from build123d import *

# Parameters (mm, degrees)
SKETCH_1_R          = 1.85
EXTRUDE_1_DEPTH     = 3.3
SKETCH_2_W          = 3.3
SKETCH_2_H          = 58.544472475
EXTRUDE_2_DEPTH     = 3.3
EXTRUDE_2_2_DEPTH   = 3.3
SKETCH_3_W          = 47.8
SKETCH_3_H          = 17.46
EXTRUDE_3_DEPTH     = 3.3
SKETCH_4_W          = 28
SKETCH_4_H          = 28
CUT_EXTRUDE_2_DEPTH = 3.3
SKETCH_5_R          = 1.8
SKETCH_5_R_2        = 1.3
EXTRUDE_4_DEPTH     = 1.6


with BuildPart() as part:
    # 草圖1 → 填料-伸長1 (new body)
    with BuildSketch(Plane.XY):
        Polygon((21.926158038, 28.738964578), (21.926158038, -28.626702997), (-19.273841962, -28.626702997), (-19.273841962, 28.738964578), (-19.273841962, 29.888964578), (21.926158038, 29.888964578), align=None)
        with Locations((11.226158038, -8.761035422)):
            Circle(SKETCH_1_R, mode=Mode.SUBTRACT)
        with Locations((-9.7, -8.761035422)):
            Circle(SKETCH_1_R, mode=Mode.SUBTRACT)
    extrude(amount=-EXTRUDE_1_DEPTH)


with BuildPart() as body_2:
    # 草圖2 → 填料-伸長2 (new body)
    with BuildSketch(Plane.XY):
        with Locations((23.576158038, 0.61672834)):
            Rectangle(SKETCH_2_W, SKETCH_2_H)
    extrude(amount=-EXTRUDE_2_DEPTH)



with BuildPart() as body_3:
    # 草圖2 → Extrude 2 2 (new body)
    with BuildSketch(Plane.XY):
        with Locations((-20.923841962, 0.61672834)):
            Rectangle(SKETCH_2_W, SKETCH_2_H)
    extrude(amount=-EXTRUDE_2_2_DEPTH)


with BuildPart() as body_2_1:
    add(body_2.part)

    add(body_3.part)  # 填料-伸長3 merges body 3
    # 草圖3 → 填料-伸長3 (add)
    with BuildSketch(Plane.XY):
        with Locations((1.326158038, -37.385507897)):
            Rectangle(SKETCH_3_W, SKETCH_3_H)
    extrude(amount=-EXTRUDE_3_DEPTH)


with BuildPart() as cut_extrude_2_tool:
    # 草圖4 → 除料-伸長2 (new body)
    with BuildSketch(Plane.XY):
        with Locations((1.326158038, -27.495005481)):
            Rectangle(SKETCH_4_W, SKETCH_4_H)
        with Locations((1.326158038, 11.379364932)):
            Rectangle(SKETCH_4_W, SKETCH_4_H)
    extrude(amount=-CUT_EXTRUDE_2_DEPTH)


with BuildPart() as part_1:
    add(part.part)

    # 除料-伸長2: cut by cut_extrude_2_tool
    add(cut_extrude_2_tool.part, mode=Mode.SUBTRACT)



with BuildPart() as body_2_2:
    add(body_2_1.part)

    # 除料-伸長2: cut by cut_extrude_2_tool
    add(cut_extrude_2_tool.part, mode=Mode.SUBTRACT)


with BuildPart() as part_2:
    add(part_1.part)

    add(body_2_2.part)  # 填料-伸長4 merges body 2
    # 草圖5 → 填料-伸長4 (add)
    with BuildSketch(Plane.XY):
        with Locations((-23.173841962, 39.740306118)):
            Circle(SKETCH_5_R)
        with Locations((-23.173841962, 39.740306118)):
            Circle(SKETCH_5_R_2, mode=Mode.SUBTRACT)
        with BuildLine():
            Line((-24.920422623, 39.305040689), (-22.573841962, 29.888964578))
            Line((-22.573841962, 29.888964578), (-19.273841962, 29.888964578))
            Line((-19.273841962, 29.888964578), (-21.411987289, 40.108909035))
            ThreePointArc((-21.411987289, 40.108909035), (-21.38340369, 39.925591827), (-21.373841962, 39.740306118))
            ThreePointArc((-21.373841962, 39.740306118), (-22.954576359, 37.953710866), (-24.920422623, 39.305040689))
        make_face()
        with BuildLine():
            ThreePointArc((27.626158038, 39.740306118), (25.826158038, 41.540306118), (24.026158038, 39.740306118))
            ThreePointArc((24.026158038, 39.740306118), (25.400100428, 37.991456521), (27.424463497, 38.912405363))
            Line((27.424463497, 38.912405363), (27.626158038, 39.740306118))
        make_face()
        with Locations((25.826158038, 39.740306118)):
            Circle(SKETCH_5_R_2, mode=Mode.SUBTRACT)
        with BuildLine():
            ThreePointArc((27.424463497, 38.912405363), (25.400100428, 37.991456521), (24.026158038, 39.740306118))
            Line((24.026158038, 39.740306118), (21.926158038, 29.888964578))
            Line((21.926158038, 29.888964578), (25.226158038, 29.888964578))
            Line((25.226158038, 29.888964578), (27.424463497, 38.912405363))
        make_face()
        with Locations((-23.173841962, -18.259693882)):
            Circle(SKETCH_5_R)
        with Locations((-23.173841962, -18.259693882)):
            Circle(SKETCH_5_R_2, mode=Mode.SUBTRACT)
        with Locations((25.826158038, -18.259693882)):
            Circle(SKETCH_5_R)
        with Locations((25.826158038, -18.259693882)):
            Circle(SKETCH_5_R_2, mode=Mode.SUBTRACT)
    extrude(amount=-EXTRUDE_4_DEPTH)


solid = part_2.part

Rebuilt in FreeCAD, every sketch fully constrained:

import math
import FreeCAD as App
import Part
import Sketcher

V = App.Vector
Q = App.Units.Quantity

doc = App.newDocument("Part")
params = doc.addObject("Spreadsheet::Sheet", "Params")
for row, (alias, value) in enumerate([
    ("sketch1_diameter", "3.7 mm"),
    ("sketch1_width", "41.2 mm"),
    ("pad1_length", "3.3 mm"),
    ("sketch2_width", "3.3 mm"),
    ("pad2_length", "3.3 mm"),
    ("sketch3_width", "3.3 mm"),
    ("pad3_length", "3.3 mm"),
    ("sketch4_width", "47.8 mm"),
    ("sketch4_height", "17.46 mm"),
    ("pad4_length", "3.3 mm"),
    ("sketch5_width", "28 mm"),
    ("pad5_length", "3.3 mm"),
    ("sketch6_diameter", "2.6 mm"),
    ("sketch6_diameter2", "3.6 mm"),
    ("sketch6_width", "3.3 mm"),
    ("pad6_length", "1.6 mm"),
], start=1):
    params.set(f"A{row}", alias)
    params.set(f"B{row}", "=" + value)
    params.setAlias(f"B{row}", alias)

body = doc.addObject("PartDesign::Body", "Body")

sketch1 = body.newObject("Sketcher::SketchObject", "Sketch")
sketch1.AttachmentSupport = (doc.getObject("XY_Plane"), [""])
sketch1.MapMode = "FlatFace"
sketch1.addGeometry(Part.LineSegment(V(21.9, -28.6, 0), V(21.9, 29.9, 0)), False)
sketch1.addGeometry(Part.LineSegment(V(21.9, 29.9, 0), V(-19.3, 29.9, 0)), False)
sketch1.addGeometry(Part.LineSegment(V(-19.3, 29.9, 0), V(-19.3, -28.6, 0)), False)
sketch1.addGeometry(Part.LineSegment(V(-19.3, -28.6, 0), V(21.9, -28.6, 0)), False)
sketch1.addGeometry(Part.Circle(V(11.2, -8.8, 0), V(0, 0, 1), 1.9), False)
sketch1.addGeometry(Part.Circle(V(-9.7, -8.8, 0), V(0, 0, 1), 1.9), False)
sketch1.addConstraint(Sketcher.Constraint("Coincident", 0, 2, 1, 1))
sketch1.addConstraint(Sketcher.Constraint("Coincident", 1, 2, 2, 1))
sketch1.addConstraint(Sketcher.Constraint("Coincident", 2, 2, 3, 1))
sketch1.addConstraint(Sketcher.Constraint("Coincident", 3, 2, 0, 1))
sketch1.addConstraint(Sketcher.Constraint("Vertical", 0))
sketch1.addConstraint(Sketcher.Constraint("Horizontal", 1))
sketch1.addConstraint(Sketcher.Constraint("Vertical", 2))
sketch1.addConstraint(Sketcher.Constraint("Horizontal", 3))
sketch1.addConstraint(Sketcher.Constraint("Equal", 4, 5))
sketch1.addConstraint(Sketcher.Constraint("Horizontal", 4, 3, 5, 3))
sketch1.addConstraint(Sketcher.Constraint("Diameter", 4, Q("3.7 mm")))
sketch1.addConstraint(Sketcher.Constraint("DistanceX", 1, 2, 1, 1, Q("41.2 mm")))
sketch1.addConstraint(Sketcher.Constraint("DistanceX", 5, 3, -1, 1, Q("9.7 mm")))
sketch1.addConstraint(Sketcher.Constraint("DistanceX", 4, 3, 0, 2, Q("10.7 mm")))
sketch1.addConstraint(Sketcher.Constraint("DistanceY", 4, 3, 0, 2, Q("38.65 mm")))
sketch1.addConstraint(Sketcher.Constraint("DistanceY", 0, 1, 0, 2, Q("58.515668 mm")))
sketch1.addConstraint(Sketcher.Constraint("DistanceX", -1, 1, 4, 3, Q("11.226158 mm")))
sketch1.addConstraint(Sketcher.Constraint("DistanceY", 4, 3, -1, 1, Q("8.761035 mm")))
sketch1.setExpression("Constraints[10]", "Params.sketch1_diameter")
sketch1.setExpression("Constraints[11]", "Params.sketch1_width")
pad1 = body.newObject("PartDesign::Pad", "Pad")
pad1.Profile = sketch1
pad1.setExpression("Length", "Params.pad1_length")
pad1.Reversed = True
body2 = doc.addObject("PartDesign::Body", "Body001")

sketch2 = body2.newObject("Sketcher::SketchObject", "Sketch001")
sketch2.AttachmentSupport = (doc.getObject("XY_Plane001"), [""])
sketch2.MapMode = "FlatFace"
sketch2.addGeometry(Part.LineSegment(V(21.9, 29.9, 0), V(21.9, -28.7, 0)), False)
sketch2.addGeometry(Part.LineSegment(V(21.9, -28.7, 0), V(25.2, -28.7, 0)), False)
sketch2.addGeometry(Part.LineSegment(V(25.2, -28.7, 0), V(25.2, 29.9, 0)), False)
sketch2.addGeometry(Part.LineSegment(V(25.2, 29.9, 0), V(21.9, 29.9, 0)), False)
sketch2.addConstraint(Sketcher.Constraint("Coincident", 0, 2, 1, 1))
sketch2.addConstraint(Sketcher.Constraint("Coincident", 1, 2, 2, 1))
sketch2.addConstraint(Sketcher.Constraint("Coincident", 2, 2, 3, 1))
sketch2.addConstraint(Sketcher.Constraint("Coincident", 3, 2, 0, 1))
sketch2.addConstraint(Sketcher.Constraint("Vertical", 0))
sketch2.addConstraint(Sketcher.Constraint("Horizontal", 1))
sketch2.addConstraint(Sketcher.Constraint("Vertical", 2))
sketch2.addConstraint(Sketcher.Constraint("Horizontal", 3))
sketch2.addConstraint(Sketcher.Constraint("DistanceX", 1, 1, 1, 2, Q("3.3 mm")))
sketch2.addConstraint(Sketcher.Constraint("DistanceY", 0, 2, 0, 1, Q("58.544472 mm")))
sketch2.addConstraint(Sketcher.Constraint("DistanceX", -1, 1, 0, 2, Q("21.926158 mm")))
sketch2.addConstraint(Sketcher.Constraint("DistanceY", 0, 2, -1, 1, Q("28.655508 mm")))
sketch2.setExpression("Constraints[8]", "Params.sketch2_width")
pad2 = body2.newObject("PartDesign::Pad", "Pad001")
pad2.Profile = sketch2
pad2.setExpression("Length", "Params.pad2_length")
pad2.Reversed = True
body3 = doc.addObject("PartDesign::Body", "Body002")

sketch3 = body3.newObject("Sketcher::SketchObject", "Sketch002")
sketch3.AttachmentSupport = (doc.getObject("XY_Plane002"), [""])
sketch3.MapMode = "FlatFace"
sketch3.addGeometry(Part.LineSegment(V(-22.6, 29.9, 0), V(-22.6, -28.7, 0)), False)
sketch3.addGeometry(Part.LineSegment(V(-22.6, -28.7, 0), V(-19.3, -28.7, 0)), False)
sketch3.addGeometry(Part.LineSegment(V(-19.3, -28.7, 0), V(-19.3, 29.9, 0)), False)
sketch3.addGeometry(Part.LineSegment(V(-19.3, 29.9, 0), V(-22.6, 29.9, 0)), False)
sketch3.addConstraint(Sketcher.Constraint("Coincident", 0, 2, 1, 1))
sketch3.addConstraint(Sketcher.Constraint("Coincident", 1, 2, 2, 1))
sketch3.addConstraint(Sketcher.Constraint("Coincident", 2, 2, 3, 1))
sketch3.addConstraint(Sketcher.Constraint("Coincident", 3, 2, 0, 1))
sketch3.addConstraint(Sketcher.Constraint("Vertical", 0))
sketch3.addConstraint(Sketcher.Constraint("Horizontal", 1))
sketch3.addConstraint(Sketcher.Constraint("Vertical", 2))
sketch3.addConstraint(Sketcher.Constraint("Horizontal", 3))
sketch3.addConstraint(Sketcher.Constraint("DistanceX", 1, 1, 1, 2, Q("3.3 mm")))
sketch3.addConstraint(Sketcher.Constraint("DistanceY", 0, 2, 0, 1, Q("58.544472 mm")))
sketch3.addConstraint(Sketcher.Constraint("DistanceX", 0, 2, -1, 1, Q("22.573842 mm")))
sketch3.addConstraint(Sketcher.Constraint("DistanceY", 0, 2, -1, 1, Q("28.655508 mm")))
sketch3.setExpression("Constraints[8]", "Params.sketch3_width")
pad3 = body3.newObject("PartDesign::Pad", "Pad002")
pad3.Profile = sketch3
pad3.setExpression("Length", "Params.pad3_length")
pad3.Reversed = True
body2.AllowCompound = True
doc.recompute()

boolean = body2.newObject("PartDesign::Boolean", "Boolean")
boolean.Type = "Fuse"
boolean.addObjects([body3])

sketch4 = body2.newObject("Sketcher::SketchObject", "Sketch003")
sketch4.AttachmentSupport = (doc.getObject("XY_Plane001"), [""])
sketch4.MapMode = "FlatFace"
sketch4.addGeometry(Part.LineSegment(V(-23, -29, 0), V(-23, -46, 0)), False)
sketch4.addGeometry(Part.LineSegment(V(-23, -46, 0), V(25, -46, 0)), False)
sketch4.addGeometry(Part.LineSegment(V(25, -46, 0), V(25, -29, 0)), False)
sketch4.addGeometry(Part.LineSegment(V(25, -29, 0), V(-23, -29, 0)), False)
sketch4.addConstraint(Sketcher.Constraint("Coincident", 0, 2, 1, 1))
sketch4.addConstraint(Sketcher.Constraint("Coincident", 1, 2, 2, 1))
sketch4.addConstraint(Sketcher.Constraint("Coincident", 2, 2, 3, 1))
sketch4.addConstraint(Sketcher.Constraint("Coincident", 3, 2, 0, 1))
sketch4.addConstraint(Sketcher.Constraint("Vertical", 0))
sketch4.addConstraint(Sketcher.Constraint("Horizontal", 1))
sketch4.addConstraint(Sketcher.Constraint("Vertical", 2))
sketch4.addConstraint(Sketcher.Constraint("Horizontal", 3))
sketch4.addConstraint(Sketcher.Constraint("DistanceX", 1, 1, 1, 2, Q("47.8 mm")))
sketch4.addConstraint(Sketcher.Constraint("DistanceY", 0, 2, 0, 1, Q("17.46 mm")))
sketch4.addConstraint(Sketcher.Constraint("DistanceX", 0, 2, -1, 1, Q("22.573842 mm")))
sketch4.addConstraint(Sketcher.Constraint("DistanceY", 0, 2, -1, 1, Q("46.115508 mm")))
sketch4.setExpression("Constraints[8]", "Params.sketch4_width")
sketch4.setExpression("Constraints[9]", "Params.sketch4_height")
pad4 = body2.newObject("PartDesign::Pad", "Pad003")
pad4.Profile = sketch4
pad4.setExpression("Length", "Params.pad4_length")
pad4.Reversed = True
body4 = doc.addObject("PartDesign::Body", "Body003")
body4.AllowCompound = True

sketch5 = body4.newObject("Sketcher::SketchObject", "Sketch004")
sketch5.AttachmentSupport = (doc.getObject("XY_Plane003"), [""])
sketch5.MapMode = "FlatFace"
sketch5.addGeometry(Part.LineSegment(V(-13, -13, 0), V(-13, -41, 0)), False)
sketch5.addGeometry(Part.LineSegment(V(-13, -41, 0), V(15, -41, 0)), False)
sketch5.addGeometry(Part.LineSegment(V(15, -41, 0), V(15, -13, 0)), False)
sketch5.addGeometry(Part.LineSegment(V(15, -13, 0), V(-13, -13, 0)), False)
sketch5.addGeometry(Part.LineSegment(V(-13, 25, 0), V(-13, -3, 0)), False)
sketch5.addGeometry(Part.LineSegment(V(-13, -3, 0), V(15, -3, 0)), False)
sketch5.addGeometry(Part.LineSegment(V(15, -3, 0), V(15, 25, 0)), False)
sketch5.addGeometry(Part.LineSegment(V(15, 25, 0), V(-13, 25, 0)), False)
sketch5.addConstraint(Sketcher.Constraint("Coincident", 0, 2, 1, 1))
sketch5.addConstraint(Sketcher.Constraint("Coincident", 1, 2, 2, 1))
sketch5.addConstraint(Sketcher.Constraint("Coincident", 2, 2, 3, 1))
sketch5.addConstraint(Sketcher.Constraint("Coincident", 3, 2, 0, 1))
sketch5.addConstraint(Sketcher.Constraint("Coincident", 4, 2, 5, 1))
sketch5.addConstraint(Sketcher.Constraint("Coincident", 5, 2, 6, 1))
sketch5.addConstraint(Sketcher.Constraint("Coincident", 6, 2, 7, 1))
sketch5.addConstraint(Sketcher.Constraint("Coincident", 7, 2, 4, 1))
sketch5.addConstraint(Sketcher.Constraint("Vertical", 0))
sketch5.addConstraint(Sketcher.Constraint("Horizontal", 1))
sketch5.addConstraint(Sketcher.Constraint("Vertical", 2))
sketch5.addConstraint(Sketcher.Constraint("Horizontal", 3))
sketch5.addConstraint(Sketcher.Constraint("Vertical", 4))
sketch5.addConstraint(Sketcher.Constraint("Horizontal", 5))
sketch5.addConstraint(Sketcher.Constraint("Vertical", 6))
sketch5.addConstraint(Sketcher.Constraint("Horizontal", 7))
sketch5.addConstraint(Sketcher.Constraint("Vertical", 3, 2, 4, 2))
sketch5.addConstraint(Sketcher.Constraint("Vertical", 2, 2, 5, 2))
sketch5.addConstraint(Sketcher.Constraint("Equal", 7, 0))
sketch5.addConstraint(Sketcher.Constraint("Equal", 2, 4))
sketch5.addConstraint(Sketcher.Constraint("DistanceX", 1, 1, 1, 2, Q("28 mm")))
sketch5.addConstraint(Sketcher.Constraint("DistanceX", 0, 2, -1, 1, Q("12.673842 mm")))
sketch5.addConstraint(Sketcher.Constraint("DistanceY", 3, 2, 4, 2, Q("10.87437 mm")))
sketch5.addConstraint(Sketcher.Constraint("DistanceY", 0, 2, -1, 1, Q("41.495005 mm")))
sketch5.setExpression("Constraints[20]", "Params.sketch5_width")
pad5 = body4.newObject("PartDesign::Pad", "Pad004")
pad5.Profile = sketch5
pad5.setExpression("Length", "Params.pad5_length")
pad5.Reversed = True
doc.recompute()

body5 = doc.addObject("PartDesign::Body", "Body004")
body5.BaseFeature = body4
boolean2 = body.newObject("PartDesign::Boolean", "Boolean001")
boolean2.Type = "Cut"
boolean2.addObjects([body5])
doc.recompute()

boolean3 = body2.newObject("PartDesign::Boolean", "Boolean002")
boolean3.Type = "Cut"
boolean3.addObjects([body4])
doc.recompute()

boolean4 = body.newObject("PartDesign::Boolean", "Boolean003")
boolean4.Type = "Fuse"
boolean4.addObjects([body2])

sketch6 = body.newObject("Sketcher::SketchObject", "Sketch005")
sketch6.AttachmentSupport = (doc.getObject("XY_Plane"), [""])
sketch6.MapMode = "FlatFace"
sketch6.addGeometry(Part.ArcOfCircle(Part.Circle(V(-23.2, 39.7, 0), V(0, 0, 1), 1.8), math.radians(12), math.radians(194)), False)
sketch6.addGeometry(Part.LineSegment(V(-24.9, 39.3, 0), V(-22.6, 29.9, 0)), False)
sketch6.addGeometry(Part.LineSegment(V(-22.6, 29.9, 0), V(-19.3, 29.9, 0)), False)
sketch6.addGeometry(Part.LineSegment(V(-19.3, 29.9, 0), V(-21.4, 40.1, 0)), False)
sketch6.addGeometry(Part.Circle(V(-23.2, 39.7, 0), V(0, 0, 1), 1.3), False)
sketch6.addGeometry(Part.ArcOfCircle(Part.Circle(V(25.8, 39.7, 0), V(0, 0, 1), 1.8), math.radians(0), math.radians(180)), False)
sketch6.addGeometry(Part.LineSegment(V(24, 39.7, 0), V(21.9, 29.9, 0)), False)
sketch6.addGeometry(Part.LineSegment(V(21.9, 29.9, 0), V(25.2, 29.9, 0)), False)
sketch6.addGeometry(Part.LineSegment(V(25.2, 29.9, 0), V(27.4, 38.9, 0)), False)
sketch6.addGeometry(Part.LineSegment(V(27.4, 38.9, 0), V(27.6, 39.7, 0)), False)
sketch6.addGeometry(Part.Circle(V(25.8, 39.7, 0), V(0, 0, 1), 1.3), False)
sketch6.addGeometry(Part.Circle(V(-23.2, -18.3, 0), V(0, 0, 1), 1.8), False)
sketch6.addGeometry(Part.Circle(V(-23.2, -18.3, 0), V(0, 0, 1), 1.3), False)
sketch6.addGeometry(Part.Circle(V(25.8, -18.3, 0), V(0, 0, 1), 1.8), False)
sketch6.addGeometry(Part.Circle(V(25.8, -18.3, 0), V(0, 0, 1), 1.3), False)
sketch6.addConstraint(Sketcher.Constraint("Tangent", 0, 2, 1, 1))
sketch6.addConstraint(Sketcher.Constraint("Coincident", 1, 2, 2, 1))
sketch6.addConstraint(Sketcher.Constraint("Coincident", 2, 2, 3, 1))
sketch6.addConstraint(Sketcher.Constraint("Tangent", 3, 2, 0, 1))
sketch6.addConstraint(Sketcher.Constraint("Coincident", 5, 2, 6, 1))
sketch6.addConstraint(Sketcher.Constraint("Coincident", 6, 2, 7, 1))
sketch6.addConstraint(Sketcher.Constraint("Coincident", 7, 2, 8, 1))
sketch6.addConstraint(Sketcher.Constraint("Coincident", 8, 2, 9, 1))
sketch6.addConstraint(Sketcher.Constraint("Coincident", 9, 2, 5, 1))
sketch6.addConstraint(Sketcher.Constraint("Horizontal", 2))
sketch6.addConstraint(Sketcher.Constraint("Horizontal", 7))
sketch6.addConstraint(Sketcher.Constraint("Coincident", 4, 3, 0, 3))
sketch6.addConstraint(Sketcher.Constraint("Coincident", 10, 3, 5, 3))
sketch6.addConstraint(Sketcher.Constraint("Coincident", 12, 3, 11, 3))
sketch6.addConstraint(Sketcher.Constraint("Coincident", 14, 3, 13, 3))
sketch6.addConstraint(Sketcher.Constraint("Equal", 0, 5))
sketch6.addConstraint(Sketcher.Constraint("Equal", 4, 10))
sketch6.addConstraint(Sketcher.Constraint("Equal", 5, 11))
sketch6.addConstraint(Sketcher.Constraint("Equal", 10, 12))
sketch6.addConstraint(Sketcher.Constraint("Equal", 11, 13))
sketch6.addConstraint(Sketcher.Constraint("Equal", 12, 14))
sketch6.addConstraint(Sketcher.Constraint("Parallel", 8, 9))
sketch6.addConstraint(Sketcher.Constraint("Horizontal", 4, 3, 5, 3))
sketch6.addConstraint(Sketcher.Constraint("Horizontal", 12, 3, 13, 3))
sketch6.addConstraint(Sketcher.Constraint("Horizontal", 10, 3, 5, 2))
sketch6.addConstraint(Sketcher.Constraint("Horizontal", 2, 2, 6, 2))
sketch6.addConstraint(Sketcher.Constraint("Horizontal", 5, 2, 9, 2))
sketch6.addConstraint(Sketcher.Constraint("Vertical", 4, 3, 11, 3))
sketch6.addConstraint(Sketcher.Constraint("Vertical", 10, 3, 13, 3))
sketch6.addConstraint(Sketcher.Constraint("Equal", 2, 7))
sketch6.addConstraint(Sketcher.Constraint("Diameter", 4, Q("2.6 mm")))
sketch6.addConstraint(Sketcher.Constraint("Diameter", 11, Q("3.6 mm")))
sketch6.addConstraint(Sketcher.Constraint("DistanceX", 2, 1, 2, 2, Q("3.3 mm")))
sketch6.addConstraint(Sketcher.Constraint("DistanceX", 0, 3, 5, 3, Q("49 mm")))
sketch6.addConstraint(Sketcher.Constraint("DistanceY", 11, 3, 0, 3, Q("58 mm")))
sketch6.addConstraint(Sketcher.Constraint("DistanceX", 0, 3, 1, 2, Q("0.6 mm")))
sketch6.addConstraint(Sketcher.Constraint("DistanceX", 6, 2, 5, 2, Q("2.1 mm")))
sketch6.addConstraint(Sketcher.Constraint("DistanceY", 8, 2, 5, 3, Q("0.827901 mm")))
sketch6.addConstraint(Sketcher.Constraint("Distance", 8, Q("9.287359 mm")))
sketch6.addConstraint(Sketcher.Constraint("DistanceX", 0, 3, -1, 1, Q("23.173842 mm")))
sketch6.addConstraint(Sketcher.Constraint("DistanceY", -1, 1, 0, 2, Q("39.305041 mm")))
sketch6.setExpression("Constraints[30]", "Params.sketch6_diameter")
sketch6.setExpression("Constraints[31]", "Params.sketch6_diameter2")
sketch6.setExpression("Constraints[32]", "Params.sketch6_width")
pad6 = body.newObject("PartDesign::Pad", "Pad005")
pad6.Profile = sketch6
pad6.setExpression("Length", "Params.pad6_length")
pad6.Reversed = True

doc.recompute()
